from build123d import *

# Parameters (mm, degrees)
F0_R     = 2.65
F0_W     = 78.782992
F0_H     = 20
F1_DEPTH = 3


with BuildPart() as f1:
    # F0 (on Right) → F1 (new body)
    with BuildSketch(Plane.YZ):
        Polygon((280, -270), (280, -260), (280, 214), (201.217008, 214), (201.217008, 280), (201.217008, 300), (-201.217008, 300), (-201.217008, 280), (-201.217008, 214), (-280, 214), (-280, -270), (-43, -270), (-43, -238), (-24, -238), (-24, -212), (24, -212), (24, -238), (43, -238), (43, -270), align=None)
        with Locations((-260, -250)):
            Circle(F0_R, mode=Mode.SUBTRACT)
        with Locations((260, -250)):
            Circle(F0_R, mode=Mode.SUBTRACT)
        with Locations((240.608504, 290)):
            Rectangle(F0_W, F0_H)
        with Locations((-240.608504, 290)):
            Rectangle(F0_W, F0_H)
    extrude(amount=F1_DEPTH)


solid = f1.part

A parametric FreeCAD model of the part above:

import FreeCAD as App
import Part
import Sketcher

V = App.Vector
Q = App.Units.Quantity

doc = App.newDocument("Part")
body = doc.addObject("PartDesign::Body", "Body")

sketch1 = doc.addObject("Sketcher::SketchObject", "Sketch")
body.addObject(sketch1)
sketch1.AttachmentSupport = (doc.YZ_Plane, [""])
sketch1.MapMode = "FlatFace"
sketch1.addGeometry([
    Part.LineSegment(V(280, -270, 0), V(280, 214, 0)),
    Part.LineSegment(V(280, 214, 0), V(201.2, 214, 0)),
    Part.LineSegment(V(201.2, 214, 0), V(201.2, 280, 0)),
    Part.LineSegment(V(201.2, 280, 0), V(280, 280, 0)),
    Part.LineSegment(V(280, 280, 0), V(280, 300, 0)),
    Part.LineSegment(V(280, 300, 0), V(-280, 300, 0)),
    Part.LineSegment(V(-280, 300, 0), V(-280, 280, 0)),
    Part.LineSegment(V(-280, 280, 0), V(-201.2, 280, 0)),
    Part.LineSegment(V(-201.2, 280, 0), V(-201.2, 214, 0)),
    Part.LineSegment(V(-201.2, 214, 0), V(-280, 214, 0)),
    Part.LineSegment(V(-280, 214, 0), V(-280, -270, 0)),
    Part.LineSegment(V(-280, -270, 0), V(-43, -270, 0)),
    Part.LineSegment(V(-43, -270, 0), V(-43, -238, 0)),
    Part.LineSegment(V(-43, -238, 0), V(-24, -238, 0)),
    Part.LineSegment(V(-24, -238, 0), V(-24, -212, 0)),
    Part.LineSegment(V(-24, -212, 0), V(24, -212, 0)),
    Part.LineSegment(V(24, -212, 0), V(24, -238, 0)),
    Part.LineSegment(V(24, -238, 0), V(43, -238, 0)),
    Part.LineSegment(V(43, -238, 0), V(43, -270, 0)),
    Part.LineSegment(V(43, -270, 0), V(280, -270, 0)),
    Part.Circle(V(-260, -250, 0), V(0, 0, 1), 2.6),
    Part.Circle(V(260, -250, 0), V(0, 0, 1), 2.6),
], False)
sketch1.addConstraint([
    Sketcher.Constraint("Coincident", 0, 2, 1, 1),
    Sketcher.Constraint("Coincident", 1, 2, 2, 1),
    Sketcher.Constraint("Coincident", 2, 2, 3, 1),
    Sketcher.Constraint("Coincident", 3, 2, 4, 1),
    Sketcher.Constraint("Coincident", 4, 2, 5, 1),
    Sketcher.Constraint("Coincident", 5, 2, 6, 1),
    Sketcher.Constraint("Coincident", 6, 2, 7, 1),
    Sketcher.Constraint("Coincident", 7, 2, 8, 1),
    Sketcher.Constraint("Coincident", 8, 2, 9, 1),
    Sketcher.Constraint("Coincident", 9, 2, 10, 1),
    Sketcher.Constraint("Coincident", 10, 2, 11, 1),
    Sketcher.Constraint("Coincident", 11, 2, 12, 1),
    Sketcher.Constraint("Coincident", 12, 2, 13, 1),
    Sketcher.Constraint("Coincident", 13, 2, 14, 1),
    Sketcher.Constraint("Coincident", 14, 2, 15, 1),
    Sketcher.Constraint("Coincident", 15, 2, 16, 1),
    Sketcher.Constraint("Coincident", 16, 2, 17, 1),
    Sketcher.Constraint("Coincident", 17, 2, 18, 1),
    Sketcher.Constraint("Coincident", 18, 2, 19, 1),
    Sketcher.Constraint("Coincident", 19, 2, 0, 1),
    Sketcher.Constraint("Vertical", 0),
    Sketcher.Constraint("Horizontal", 1),
    Sketcher.Constraint("Vertical", 2),
    Sketcher.Constraint("Horizontal", 3),
    Sketcher.Constraint("Vertical", 4),
    Sketcher.Constraint("Horizontal", 5),
    Sketcher.Constraint("Vertical", 6),
    Sketcher.Constraint("Horizontal", 7),
    Sketcher.Constraint("Vertical", 8),
    Sketcher.Constraint("Horizontal", 9),
    Sketcher.Constraint("Vertical", 10),
    Sketcher.Constraint("Horizontal", 11),
    Sketcher.Constraint("Vertical", 12),
    Sketcher.Constraint("Horizontal", 13),
    Sketcher.Constraint("Vertical", 14),
    Sketcher.Constraint("Horizontal", 15),
    Sketcher.Constraint("Vertical", 16),
    Sketcher.Constraint("Horizontal", 17),
    Sketcher.Constraint("Vertical", 18),
    Sketcher.Constraint("Horizontal", 19),
    Sketcher.Constraint("Equal", 20, 21),
    Sketcher.Constraint("Symmetric", 20, 3, 21, 3, -2),
    Sketcher.Constraint("Symmetric", 3, 2, 6, 2, -2),
    Sketcher.Constraint("Symmetric", 1, 2, 8, 2, -2),
    Sketcher.Constraint("Symmetric", 13, 2, 16, 2, -2),
    Sketcher.Constraint("Symmetric", 11, 2, 18, 2, -2),
    Sketcher.Constraint("Vertical", 0, 2, 3, 2),
    Sketcher.Constraint("Vertical", 6, 2, 9, 2),
    Sketcher.Constraint("Diameter", 20, Q("5.3 mm")),
    Sketcher.Constraint("DistanceX", 5, 2, 5, 1, Q("560 mm")),
    Sketcher.Constraint("DistanceX", 11, 1, 11, 2, Q("237 mm")),
    Sketcher.Constraint("DistanceX", 13, 1, 13, 2, Q("19 mm")),
    Sketcher.Constraint("DistanceY", 0, 1, 0, 2, Q("484 mm")),
    Sketcher.Constraint("DistanceY", 2, 1, 2, 2, Q("66 mm")),
    Sketcher.Constraint("DistanceY", 4, 1, 4, 2, Q("20 mm")),
    Sketcher.Constraint("DistanceY", 12, 1, 12, 2, Q("32 mm")),
    Sketcher.Constraint("DistanceY", 14, 1, 14, 2, Q("26 mm")),
    Sketcher.Constraint("DistanceX", 20, 3, -1, 1, Q("260 mm")),
    Sketcher.Constraint("DistanceY", 20, 3, -1, 1, Q("250 mm")),
    Sketcher.Constraint("DistanceY", -1, 1, 0, 2, Q("214 mm")),
    Sketcher.Constraint("DistanceX", 1, 2, 1, 1, Q("78.782992 mm")),
])
pad1 = doc.addObject("PartDesign::Pad", "Pad")
body.addObject(pad1)
pad1.Profile = sketch1
pad1.Length = 3

doc.recompute()
